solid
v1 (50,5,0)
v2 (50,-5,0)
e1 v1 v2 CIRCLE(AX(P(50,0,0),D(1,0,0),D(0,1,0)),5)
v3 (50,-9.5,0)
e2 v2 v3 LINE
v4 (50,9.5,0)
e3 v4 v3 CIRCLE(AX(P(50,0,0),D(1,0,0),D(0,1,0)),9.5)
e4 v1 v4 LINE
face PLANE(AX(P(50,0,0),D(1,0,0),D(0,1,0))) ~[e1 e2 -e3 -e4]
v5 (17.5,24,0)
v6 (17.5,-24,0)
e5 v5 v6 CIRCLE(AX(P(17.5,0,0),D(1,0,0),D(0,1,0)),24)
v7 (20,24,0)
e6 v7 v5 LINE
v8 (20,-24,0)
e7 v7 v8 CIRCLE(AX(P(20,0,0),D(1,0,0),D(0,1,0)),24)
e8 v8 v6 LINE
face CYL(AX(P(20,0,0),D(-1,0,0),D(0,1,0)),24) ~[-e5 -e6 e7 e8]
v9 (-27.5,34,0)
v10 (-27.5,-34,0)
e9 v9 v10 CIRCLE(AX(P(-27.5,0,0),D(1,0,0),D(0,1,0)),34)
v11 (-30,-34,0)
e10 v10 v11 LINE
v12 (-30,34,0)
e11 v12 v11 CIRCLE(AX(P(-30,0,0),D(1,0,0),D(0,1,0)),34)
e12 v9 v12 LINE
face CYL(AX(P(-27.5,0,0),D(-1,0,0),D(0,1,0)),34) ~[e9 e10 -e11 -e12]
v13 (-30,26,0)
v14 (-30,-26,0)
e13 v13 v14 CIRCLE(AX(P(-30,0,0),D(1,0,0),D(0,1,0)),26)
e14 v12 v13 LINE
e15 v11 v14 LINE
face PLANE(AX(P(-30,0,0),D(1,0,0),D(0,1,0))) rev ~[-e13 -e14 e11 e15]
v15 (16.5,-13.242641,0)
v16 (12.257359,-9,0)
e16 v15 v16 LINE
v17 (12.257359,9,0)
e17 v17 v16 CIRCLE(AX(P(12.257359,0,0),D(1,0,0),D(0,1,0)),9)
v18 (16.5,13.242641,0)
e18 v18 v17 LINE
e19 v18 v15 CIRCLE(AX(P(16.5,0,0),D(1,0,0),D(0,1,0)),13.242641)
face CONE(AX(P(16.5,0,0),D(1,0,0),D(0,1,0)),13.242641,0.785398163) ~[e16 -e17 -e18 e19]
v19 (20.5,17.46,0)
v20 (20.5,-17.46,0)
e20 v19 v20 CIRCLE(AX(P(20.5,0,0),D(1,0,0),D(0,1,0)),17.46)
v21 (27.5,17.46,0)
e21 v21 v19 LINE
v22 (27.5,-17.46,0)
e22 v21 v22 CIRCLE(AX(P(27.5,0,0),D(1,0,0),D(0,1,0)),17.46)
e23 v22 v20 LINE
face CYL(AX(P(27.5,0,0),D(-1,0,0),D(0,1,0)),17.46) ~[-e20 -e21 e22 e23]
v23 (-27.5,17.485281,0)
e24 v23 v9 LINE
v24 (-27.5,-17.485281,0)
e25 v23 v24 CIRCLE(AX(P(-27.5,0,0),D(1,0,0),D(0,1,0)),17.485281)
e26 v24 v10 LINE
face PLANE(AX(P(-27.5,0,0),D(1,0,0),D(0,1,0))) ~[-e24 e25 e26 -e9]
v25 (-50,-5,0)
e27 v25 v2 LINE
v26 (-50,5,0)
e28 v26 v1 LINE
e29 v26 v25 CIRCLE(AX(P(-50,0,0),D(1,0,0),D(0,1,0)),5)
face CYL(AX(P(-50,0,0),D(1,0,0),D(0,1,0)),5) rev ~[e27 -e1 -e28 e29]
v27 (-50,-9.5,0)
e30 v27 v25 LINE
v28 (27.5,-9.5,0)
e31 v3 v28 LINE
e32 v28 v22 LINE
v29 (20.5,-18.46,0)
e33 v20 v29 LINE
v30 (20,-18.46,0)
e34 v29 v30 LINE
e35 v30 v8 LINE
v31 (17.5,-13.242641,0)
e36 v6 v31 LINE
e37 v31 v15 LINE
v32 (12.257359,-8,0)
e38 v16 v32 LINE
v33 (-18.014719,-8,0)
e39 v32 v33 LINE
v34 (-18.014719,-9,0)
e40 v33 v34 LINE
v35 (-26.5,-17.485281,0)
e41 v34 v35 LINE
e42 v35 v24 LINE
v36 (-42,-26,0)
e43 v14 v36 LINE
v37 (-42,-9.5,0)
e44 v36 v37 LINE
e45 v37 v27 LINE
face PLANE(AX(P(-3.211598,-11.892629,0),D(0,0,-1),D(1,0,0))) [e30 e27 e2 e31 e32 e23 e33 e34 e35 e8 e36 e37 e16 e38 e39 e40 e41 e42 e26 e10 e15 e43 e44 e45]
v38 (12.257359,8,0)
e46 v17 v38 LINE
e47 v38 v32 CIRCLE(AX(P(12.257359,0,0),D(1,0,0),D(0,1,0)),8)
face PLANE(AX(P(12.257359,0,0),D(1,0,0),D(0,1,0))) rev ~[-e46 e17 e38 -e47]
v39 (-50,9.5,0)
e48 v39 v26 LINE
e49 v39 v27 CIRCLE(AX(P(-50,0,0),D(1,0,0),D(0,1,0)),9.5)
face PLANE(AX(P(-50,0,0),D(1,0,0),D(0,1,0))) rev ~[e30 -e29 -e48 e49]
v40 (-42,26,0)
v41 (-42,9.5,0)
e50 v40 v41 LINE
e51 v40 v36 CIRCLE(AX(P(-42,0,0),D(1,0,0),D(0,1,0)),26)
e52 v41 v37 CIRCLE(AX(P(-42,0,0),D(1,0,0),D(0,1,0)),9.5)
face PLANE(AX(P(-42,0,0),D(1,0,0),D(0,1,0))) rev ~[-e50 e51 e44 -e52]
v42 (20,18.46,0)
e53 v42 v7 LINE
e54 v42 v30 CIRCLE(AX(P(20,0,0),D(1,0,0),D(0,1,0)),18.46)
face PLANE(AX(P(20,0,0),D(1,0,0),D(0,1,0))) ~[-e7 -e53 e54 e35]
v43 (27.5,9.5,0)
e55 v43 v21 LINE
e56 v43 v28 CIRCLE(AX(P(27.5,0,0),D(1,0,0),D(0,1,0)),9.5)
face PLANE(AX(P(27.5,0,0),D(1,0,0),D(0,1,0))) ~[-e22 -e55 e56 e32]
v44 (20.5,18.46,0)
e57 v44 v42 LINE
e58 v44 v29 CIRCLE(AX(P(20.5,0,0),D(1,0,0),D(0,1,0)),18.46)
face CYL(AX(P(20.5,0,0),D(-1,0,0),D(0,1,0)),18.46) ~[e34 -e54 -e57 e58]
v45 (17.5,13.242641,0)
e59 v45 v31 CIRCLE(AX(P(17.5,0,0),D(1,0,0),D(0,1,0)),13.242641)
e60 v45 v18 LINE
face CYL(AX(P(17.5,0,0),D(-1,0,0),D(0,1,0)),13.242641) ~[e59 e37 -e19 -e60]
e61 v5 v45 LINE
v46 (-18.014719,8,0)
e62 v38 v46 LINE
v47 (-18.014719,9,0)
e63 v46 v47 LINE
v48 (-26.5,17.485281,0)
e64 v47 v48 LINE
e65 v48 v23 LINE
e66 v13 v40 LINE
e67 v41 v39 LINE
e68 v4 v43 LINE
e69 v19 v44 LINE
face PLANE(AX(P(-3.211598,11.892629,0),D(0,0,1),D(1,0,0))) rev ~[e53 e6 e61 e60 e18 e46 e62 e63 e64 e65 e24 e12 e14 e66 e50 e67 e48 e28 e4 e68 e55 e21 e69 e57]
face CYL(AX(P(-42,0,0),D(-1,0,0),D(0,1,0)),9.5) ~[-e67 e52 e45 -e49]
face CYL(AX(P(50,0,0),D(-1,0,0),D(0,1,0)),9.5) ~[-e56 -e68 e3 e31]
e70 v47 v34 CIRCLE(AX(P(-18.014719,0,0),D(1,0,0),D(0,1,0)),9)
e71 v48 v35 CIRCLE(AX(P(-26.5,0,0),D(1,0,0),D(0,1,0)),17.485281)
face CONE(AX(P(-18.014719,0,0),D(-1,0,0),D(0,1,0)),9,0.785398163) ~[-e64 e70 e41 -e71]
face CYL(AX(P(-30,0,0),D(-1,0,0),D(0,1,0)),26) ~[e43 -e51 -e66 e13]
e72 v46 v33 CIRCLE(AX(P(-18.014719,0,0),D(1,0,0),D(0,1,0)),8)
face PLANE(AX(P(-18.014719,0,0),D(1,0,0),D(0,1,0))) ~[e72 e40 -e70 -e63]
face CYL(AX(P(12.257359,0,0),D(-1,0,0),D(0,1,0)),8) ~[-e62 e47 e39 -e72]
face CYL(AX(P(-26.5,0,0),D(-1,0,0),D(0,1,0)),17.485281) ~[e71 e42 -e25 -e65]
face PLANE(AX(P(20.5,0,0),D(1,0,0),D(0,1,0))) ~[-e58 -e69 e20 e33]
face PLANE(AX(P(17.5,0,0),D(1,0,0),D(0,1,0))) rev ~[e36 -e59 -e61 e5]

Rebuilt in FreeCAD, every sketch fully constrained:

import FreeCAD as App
import Part
import Sketcher
from FreeCAD import Vector
Q = App.Units.Quantity


def add_polygon(sketch, points):
    """Adds a closed chain of lines whose ends are joined by coincident constraints."""
    first, n = sketch.GeometryCount, len(points)
    for a, b in zip(points, points[1:] + points[:1]):
        sketch.addGeometry(Part.LineSegment(App.Vector(*a, 0), App.Vector(*b, 0)), False)
    for i in range(n):
        sketch.addConstraint(Sketcher.Constraint("Coincident", first + i, 2, first + (i + 1) % n, 1))

doc = App.newDocument("Part")
body = doc.addObject("PartDesign::Body", "Body")

# Sketch on XY plane
sketch1 = body.newObject("Sketcher::SketchObject", "Sketch")
sketch1.AttachmentSupport = (doc.getObject("XY_Plane"), [""])
sketch1.MapMode = "FlatFace"
add_polygon(sketch1, [(27.5, 9.5), (27.5, 17.46), (20.5, 17.46), (20.5, 18.46), (20, 18.46), (20, 24), (17.5, 24), (17.5, 13.242641), (16.5, 13.242641), (12.257359, 9), (12.257359, 8), (-18.014719, 8), (-18.014719, 9), (-26.5, 17.485281), (-27.5, 17.485281), (-27.5, 34), (-30, 34), (-30, 26), (-42, 26), (-42, 9.5), (-50, 9.5), (-50, 5), (50, 5), (50, 9.5)])  # lines 0-23
sketch1.addConstraint(Sketcher.Constraint("Vertical", 0))
sketch1.addConstraint(Sketcher.Constraint("Horizontal", 1))
sketch1.addConstraint(Sketcher.Constraint("Vertical", 2))
sketch1.addConstraint(Sketcher.Constraint("Horizontal", 3))
sketch1.addConstraint(Sketcher.Constraint("Vertical", 4))
sketch1.addConstraint(Sketcher.Constraint("Horizontal", 5))
sketch1.addConstraint(Sketcher.Constraint("Vertical", 6))
sketch1.addConstraint(Sketcher.Constraint("Horizontal", 7))
sketch1.addConstraint(Sketcher.Constraint("Vertical", 9))
sketch1.addConstraint(Sketcher.Constraint("Horizontal", 10))
sketch1.addConstraint(Sketcher.Constraint("Vertical", 11))
sketch1.addConstraint(Sketcher.Constraint("Horizontal", 13))
sketch1.addConstraint(Sketcher.Constraint("Vertical", 14))
sketch1.addConstraint(Sketcher.Constraint("Horizontal", 15))
sketch1.addConstraint(Sketcher.Constraint("Vertical", 16))
sketch1.addConstraint(Sketcher.Constraint("Horizontal", 17))
sketch1.addConstraint(Sketcher.Constraint("Vertical", 18))
sketch1.addConstraint(Sketcher.Constraint("Horizontal", 19))
sketch1.addConstraint(Sketcher.Constraint("Vertical", 20))
sketch1.addConstraint(Sketcher.Constraint("Horizontal", 21))
sketch1.addConstraint(Sketcher.Constraint("Vertical", 22))
sketch1.addConstraint(Sketcher.Constraint("Horizontal", 23))
sketch1.addConstraint(Sketcher.Constraint("Symmetric", 19, 2, 22, 2, -2))
sketch1.addConstraint(Sketcher.Constraint("Perpendicular", 8, 12))
sketch1.addConstraint(Sketcher.Constraint("Horizontal", 8, 2, 11, 2))
sketch1.addConstraint(Sketcher.Constraint("Equal", 7, 13))
sketch1.addConstraint(Sketcher.Constraint("Equal", 5, 15))
sketch1.addConstraint(Sketcher.Constraint("Equal", 13, 2))
sketch1.addConstraint(Sketcher.Constraint("Equal", 2, 9))
sketch1.addConstraint(Sketcher.Constraint("Equal", 19, 16))
sketch1.addConstraint(Sketcher.Constraint("DistanceX", 1, 2, 1, 1, 7.0))
sketch1.addConstraint(Sketcher.Constraint("DistanceX", 7, 2, 7, 1, 1.0))
sketch1.addConstraint(Sketcher.Constraint("DistanceX", 17, 2, 17, 1, 12.0))
sketch1.addConstraint(Sketcher.Constraint("DistanceX", 19, 2, 19, 1, 8.0))
sketch1.addConstraint(Sketcher.Constraint("DistanceX", 21, 1, 21, 2, 100.0))
sketch1.addConstraint(Sketcher.Constraint("Angle", 8, Q("-135 deg")))
sketch1.addConstraint(Sketcher.Constraint("Distance", 8, 6.0))
sketch1.addConstraint(Sketcher.Constraint("Distance", 12, 11.999999))
sketch1.addConstraint(Sketcher.Constraint("DistanceX", 3, 2, 3, 1, 0.5))
sketch1.addConstraint(Sketcher.Constraint("DistanceX", 5, 2, 5, 1, 2.5))
sketch1.addConstraint(Sketcher.Constraint("DistanceX", 23, 2, 23, 1, 22.5))
sketch1.addConstraint(Sketcher.Constraint("DistanceY", 18, 2, 18, 1, 16.5))
sketch1.addConstraint(Sketcher.Constraint("DistanceY", 20, 2, 20, 1, 4.5))
sketch1.addConstraint(Sketcher.Constraint("DistanceY", -1, 1, 4, 2, 24.0))
sketch1.addConstraint(Sketcher.Constraint("DistanceY", -1, 1, 8, 2, 9.0))
sketch1.addConstraint(Sketcher.Constraint("DistanceY", -1, 1, 14, 2, 34.0))
sketch1.addConstraint(Sketcher.Constraint("DistanceY", 0, 1, 0, 2, 7.96))
revolution = body.newObject("PartDesign::Revolution", "Revolution")
revolution.Profile = sketch1
revolution.ReferenceAxis = (sketch1, ["H_Axis"])
revolution.Angle = 180

# Sketch on YZ plane
sketch2 = body.newObject("Sketcher::SketchObject", "Sketch001")
sketch2.AttachmentSupport = (doc.getObject("YZ_Plane"), [""])
sketch2.MapMode = "FlatFace"
sketch2.AttachmentOffset = App.Placement(Vector(0, 0, -74.5), App.Rotation())
sketch2.addGeometry(Part.Circle(Vector(0, 22, 0), Vector(0, 0, 1), 2.5), False)
sketch2.addGeometry(Part.Circle(Vector(0, 15, 0), Vector(0, 0, 1), 2.5), False)
sketch2.addConstraint(Sketcher.Constraint("Equal", 0, 1))
sketch2.addConstraint(Sketcher.Constraint("PointOnObject", 0, 3, -2))
sketch2.addConstraint(Sketcher.Constraint("PointOnObject", 1, 3, -2))
sketch2.addConstraint(Sketcher.Constraint("Diameter", 0, 5.0))
sketch2.addConstraint(Sketcher.Constraint("DistanceY", -1, 1, 0, 3, 22.0))
sketch2.addConstraint(Sketcher.Constraint("DistanceY", -1, 1, 1, 3, 15.0))
pocket1 = body.newObject("PartDesign::Pocket", "Pocket")
pocket1.Profile = sketch2
pocket1.Length = 22
pocket1.Reversed = True
doc.recompute()

polarpattern = body.newObject("PartDesign::PolarPattern", "PolarPattern")
polarpattern.Originals = [pocket1]
polarpattern.Axis = (doc.getObject("X_Axis"), [""])
polarpattern.Angle = 360
polarpattern.Occurrences = 12
body.Tip = polarpattern

doc.recompute()
